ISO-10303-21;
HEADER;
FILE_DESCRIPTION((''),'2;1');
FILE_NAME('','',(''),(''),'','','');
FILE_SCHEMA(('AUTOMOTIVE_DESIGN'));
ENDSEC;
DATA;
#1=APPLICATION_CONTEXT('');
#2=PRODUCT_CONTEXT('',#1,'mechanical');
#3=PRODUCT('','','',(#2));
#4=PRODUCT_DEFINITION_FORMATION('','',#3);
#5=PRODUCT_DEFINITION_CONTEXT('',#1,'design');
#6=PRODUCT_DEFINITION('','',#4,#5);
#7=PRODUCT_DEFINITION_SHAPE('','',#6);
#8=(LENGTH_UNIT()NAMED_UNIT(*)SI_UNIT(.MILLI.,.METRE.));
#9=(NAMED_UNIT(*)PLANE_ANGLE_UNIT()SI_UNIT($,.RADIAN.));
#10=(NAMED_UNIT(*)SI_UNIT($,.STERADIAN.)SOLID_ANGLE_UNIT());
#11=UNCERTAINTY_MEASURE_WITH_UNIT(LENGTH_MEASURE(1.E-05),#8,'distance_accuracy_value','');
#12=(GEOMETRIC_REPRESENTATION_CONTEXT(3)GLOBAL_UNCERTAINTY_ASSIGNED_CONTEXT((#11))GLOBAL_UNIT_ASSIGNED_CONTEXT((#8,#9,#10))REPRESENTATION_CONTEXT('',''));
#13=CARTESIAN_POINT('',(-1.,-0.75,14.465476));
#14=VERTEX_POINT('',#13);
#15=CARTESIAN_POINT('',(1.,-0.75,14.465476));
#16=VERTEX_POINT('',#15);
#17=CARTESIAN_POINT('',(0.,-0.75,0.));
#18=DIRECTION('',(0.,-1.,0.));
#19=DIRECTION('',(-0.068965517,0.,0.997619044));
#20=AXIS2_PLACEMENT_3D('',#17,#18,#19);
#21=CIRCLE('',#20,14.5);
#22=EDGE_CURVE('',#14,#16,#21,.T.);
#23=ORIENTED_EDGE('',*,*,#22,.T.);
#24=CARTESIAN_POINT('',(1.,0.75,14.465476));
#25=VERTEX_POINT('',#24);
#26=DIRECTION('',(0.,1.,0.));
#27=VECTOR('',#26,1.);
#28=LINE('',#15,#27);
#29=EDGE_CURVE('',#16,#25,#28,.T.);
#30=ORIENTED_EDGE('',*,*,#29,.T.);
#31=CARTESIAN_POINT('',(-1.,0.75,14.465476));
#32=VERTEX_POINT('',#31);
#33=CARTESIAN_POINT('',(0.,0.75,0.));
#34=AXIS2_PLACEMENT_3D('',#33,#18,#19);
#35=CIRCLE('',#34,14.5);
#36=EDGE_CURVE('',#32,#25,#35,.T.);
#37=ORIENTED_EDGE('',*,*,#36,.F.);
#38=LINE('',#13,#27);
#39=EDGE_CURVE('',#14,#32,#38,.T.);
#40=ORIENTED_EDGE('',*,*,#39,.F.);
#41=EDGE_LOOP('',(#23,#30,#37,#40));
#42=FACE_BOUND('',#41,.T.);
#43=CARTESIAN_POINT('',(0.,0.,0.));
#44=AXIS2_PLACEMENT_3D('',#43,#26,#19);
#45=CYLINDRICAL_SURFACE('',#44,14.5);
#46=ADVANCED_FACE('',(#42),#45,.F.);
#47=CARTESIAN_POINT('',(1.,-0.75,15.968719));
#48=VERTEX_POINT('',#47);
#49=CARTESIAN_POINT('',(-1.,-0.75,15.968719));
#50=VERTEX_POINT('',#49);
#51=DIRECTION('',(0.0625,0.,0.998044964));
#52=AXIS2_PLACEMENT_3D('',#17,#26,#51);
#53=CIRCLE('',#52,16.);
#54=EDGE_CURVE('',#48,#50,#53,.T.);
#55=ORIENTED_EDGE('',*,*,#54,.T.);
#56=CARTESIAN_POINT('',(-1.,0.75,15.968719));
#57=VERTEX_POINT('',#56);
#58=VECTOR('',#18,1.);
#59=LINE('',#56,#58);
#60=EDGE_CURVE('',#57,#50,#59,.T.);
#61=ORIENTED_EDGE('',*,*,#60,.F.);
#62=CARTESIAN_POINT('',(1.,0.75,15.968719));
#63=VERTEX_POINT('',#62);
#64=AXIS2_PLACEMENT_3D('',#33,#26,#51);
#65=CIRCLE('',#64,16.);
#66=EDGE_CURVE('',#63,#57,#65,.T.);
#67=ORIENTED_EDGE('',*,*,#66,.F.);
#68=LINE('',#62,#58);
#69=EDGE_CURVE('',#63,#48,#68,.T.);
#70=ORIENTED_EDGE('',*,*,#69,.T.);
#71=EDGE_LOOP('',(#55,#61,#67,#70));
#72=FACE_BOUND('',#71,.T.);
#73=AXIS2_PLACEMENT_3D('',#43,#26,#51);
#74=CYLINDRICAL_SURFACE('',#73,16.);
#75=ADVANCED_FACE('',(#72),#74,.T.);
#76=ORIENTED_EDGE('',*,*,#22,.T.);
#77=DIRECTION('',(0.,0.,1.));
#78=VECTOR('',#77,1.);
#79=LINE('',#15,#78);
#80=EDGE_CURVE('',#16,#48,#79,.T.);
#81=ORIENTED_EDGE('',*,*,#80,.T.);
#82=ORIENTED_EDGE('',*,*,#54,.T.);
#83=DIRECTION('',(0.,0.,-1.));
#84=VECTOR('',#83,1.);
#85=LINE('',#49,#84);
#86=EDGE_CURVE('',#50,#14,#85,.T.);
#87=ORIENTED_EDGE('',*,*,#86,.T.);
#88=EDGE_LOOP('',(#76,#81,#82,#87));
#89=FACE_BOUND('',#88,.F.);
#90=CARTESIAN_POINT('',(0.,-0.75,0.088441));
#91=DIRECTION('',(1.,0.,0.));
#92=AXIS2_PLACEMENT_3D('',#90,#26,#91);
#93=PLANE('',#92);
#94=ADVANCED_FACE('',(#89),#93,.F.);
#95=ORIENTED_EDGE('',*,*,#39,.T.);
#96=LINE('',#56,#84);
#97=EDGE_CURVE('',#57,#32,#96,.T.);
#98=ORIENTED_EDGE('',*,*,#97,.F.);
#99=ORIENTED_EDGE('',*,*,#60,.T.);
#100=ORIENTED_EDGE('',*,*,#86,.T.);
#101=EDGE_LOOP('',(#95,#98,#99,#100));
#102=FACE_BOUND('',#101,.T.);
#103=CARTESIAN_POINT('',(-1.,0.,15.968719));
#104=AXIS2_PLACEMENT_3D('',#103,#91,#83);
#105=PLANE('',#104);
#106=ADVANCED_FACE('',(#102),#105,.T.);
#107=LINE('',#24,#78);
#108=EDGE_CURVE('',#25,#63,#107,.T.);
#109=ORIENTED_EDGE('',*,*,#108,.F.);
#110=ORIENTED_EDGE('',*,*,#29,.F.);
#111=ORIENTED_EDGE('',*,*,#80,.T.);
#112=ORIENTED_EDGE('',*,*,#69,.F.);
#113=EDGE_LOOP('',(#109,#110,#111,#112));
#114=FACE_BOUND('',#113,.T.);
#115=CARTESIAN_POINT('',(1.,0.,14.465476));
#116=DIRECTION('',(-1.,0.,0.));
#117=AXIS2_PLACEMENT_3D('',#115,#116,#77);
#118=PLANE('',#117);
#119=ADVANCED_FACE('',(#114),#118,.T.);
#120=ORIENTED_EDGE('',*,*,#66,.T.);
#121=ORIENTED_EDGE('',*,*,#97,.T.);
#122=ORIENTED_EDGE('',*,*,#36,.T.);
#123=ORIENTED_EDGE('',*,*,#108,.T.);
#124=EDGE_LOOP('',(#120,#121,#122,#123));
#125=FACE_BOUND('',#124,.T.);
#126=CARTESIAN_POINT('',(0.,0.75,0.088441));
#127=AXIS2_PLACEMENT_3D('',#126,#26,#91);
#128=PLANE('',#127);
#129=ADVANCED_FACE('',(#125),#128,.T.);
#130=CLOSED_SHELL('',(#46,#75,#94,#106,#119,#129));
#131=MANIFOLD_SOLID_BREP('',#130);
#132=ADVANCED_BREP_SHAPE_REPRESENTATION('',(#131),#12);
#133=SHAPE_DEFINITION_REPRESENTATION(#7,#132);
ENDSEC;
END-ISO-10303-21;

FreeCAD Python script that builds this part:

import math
import FreeCAD as App
import Part
import Sketcher
from FreeCAD import Vector
Q = App.Units.Quantity

doc = App.newDocument("Part")
body = doc.addObject("PartDesign::Body", "Body")

sketch1 = body.newObject("Sketcher::SketchObject", "Sketch")
sketch1.AttachmentSupport = (doc.getObject("XZ_Plane"), [""])
sketch1.MapMode = "FlatFace"
sketch1.addGeometry([
    Part.LineSegment(Vector(-1, 16, 0), Vector(-1, 14.5, 0)),
    Part.ArcOfCircle(Part.Circle(Vector(0, 0, 0), Vector(0, 0, 1), 14.5), math.radians(94), math.radians(446)),
    Part.LineSegment(Vector(1, 14.5, 0), Vector(1, 16, 0)),
    Part.ArcOfCircle(Part.Circle(Vector(0, 0, 0), Vector(0, 0, 1), 16), math.radians(94), math.radians(446)),
], False)
sketch1.addConstraint([
    Sketcher.Constraint("Coincident", 0, 2, 1, 1),
    Sketcher.Constraint("Coincident", 1, 2, 2, 1),
    Sketcher.Constraint("Coincident", 2, 2, 3, 2),
    Sketcher.Constraint("Coincident", 3, 1, 0, 1),
    Sketcher.Constraint("Vertical", 0),
    Sketcher.Constraint("Vertical", 2),
    Sketcher.Constraint("Coincident", 1, 3, -1, 1),
    Sketcher.Constraint("Coincident", 3, 3, -1, 1),
    Sketcher.Constraint("Horizontal", 0, 2, 1, 2),
    Sketcher.Constraint("Radius", 3, Q("16 mm")),
    Sketcher.Constraint("Radius", 1, Q("14.5 mm")),
    Sketcher.Constraint("DistanceX", 0, 2, -1, 1, Q("1 mm")),
])
pad1 = body.newObject("PartDesign::Pad", "Pad")
pad1.Profile = sketch1
pad1.Length = 1.5
pad1.Midplane = True

doc.recompute()
